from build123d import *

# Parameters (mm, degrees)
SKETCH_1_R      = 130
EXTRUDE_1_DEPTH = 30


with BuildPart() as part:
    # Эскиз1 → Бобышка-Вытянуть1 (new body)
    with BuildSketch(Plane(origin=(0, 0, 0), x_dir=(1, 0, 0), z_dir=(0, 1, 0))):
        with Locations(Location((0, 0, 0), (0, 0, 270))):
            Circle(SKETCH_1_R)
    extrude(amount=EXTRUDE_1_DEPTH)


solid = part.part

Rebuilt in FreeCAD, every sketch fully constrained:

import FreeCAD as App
import Part
import Sketcher
from FreeCAD import Vector

doc = App.newDocument("Part")
params = doc.addObject("Spreadsheet::Sheet", "Params")
for row, (alias, value) in enumerate([
    ("sketch1_diameter", "260 mm"),
    ("pad1_length", "30 mm"),
], start=1):
    params.set(f"A{row}", alias)
    params.set(f"B{row}", "=" + value)
    params.setAlias(f"B{row}", alias)

body = doc.addObject("PartDesign::Body", "Body")

sketch1 = doc.addObject("Sketcher::SketchObject", "Sketch")
body.addObject(sketch1)
sketch1.AttachmentSupport = (doc.XZ_Plane, [""])
sketch1.MapMode = "FlatFace"
sketch1.addGeometry(Part.Circle(Vector(0, 0, 0), Vector(0, 0, 1), 130), False)
sketch1.addConstraint([
    Sketcher.Constraint("Coincident", 0, 3, -1, 1),
    Sketcher.Constraint("Diameter", 0, 260.0),
])
sketch1.setExpression("Constraints[1]", "Params.sketch1_diameter")
pad1 = doc.addObject("PartDesign::Pad", "Pad")
body.addObject(pad1)
pad1.Profile = sketch1
pad1.setExpression("Length", "Params.pad1_length")
pad1.Reversed = True

doc.recompute()
